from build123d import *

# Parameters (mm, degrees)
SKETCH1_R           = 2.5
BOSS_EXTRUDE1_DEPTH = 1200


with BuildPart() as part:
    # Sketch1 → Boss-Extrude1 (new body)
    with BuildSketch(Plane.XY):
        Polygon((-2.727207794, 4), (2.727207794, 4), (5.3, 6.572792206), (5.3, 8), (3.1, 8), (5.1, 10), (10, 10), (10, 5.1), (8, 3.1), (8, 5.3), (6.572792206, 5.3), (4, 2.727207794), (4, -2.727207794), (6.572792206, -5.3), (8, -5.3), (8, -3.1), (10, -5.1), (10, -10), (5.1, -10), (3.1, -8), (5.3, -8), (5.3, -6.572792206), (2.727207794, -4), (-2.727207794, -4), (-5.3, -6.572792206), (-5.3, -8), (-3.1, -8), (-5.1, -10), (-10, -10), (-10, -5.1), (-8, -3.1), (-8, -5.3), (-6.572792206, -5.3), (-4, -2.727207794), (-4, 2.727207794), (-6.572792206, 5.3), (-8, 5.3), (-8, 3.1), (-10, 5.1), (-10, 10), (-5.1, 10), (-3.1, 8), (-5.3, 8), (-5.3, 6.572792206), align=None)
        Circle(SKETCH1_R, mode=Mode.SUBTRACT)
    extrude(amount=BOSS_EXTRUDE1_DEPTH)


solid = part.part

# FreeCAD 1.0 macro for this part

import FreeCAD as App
import Part
import Sketcher

V = App.Vector

doc = App.newDocument("Part")
params = doc.addObject("Spreadsheet::Sheet", "Params")
for row, (alias, value) in enumerate([
    ("sketch1_diameter", "5 mm"),
    ("sketch1_width", "2.2 mm"),
    ("sketch1_width2", "4.9 mm"),
    ("pad1_length", "1200 mm"),
], start=1):
    params.set(f"A{row}", alias)
    params.set(f"B{row}", "=" + value)
    params.setAlias(f"B{row}", alias)

body = doc.addObject("PartDesign::Body", "Body")

# Sketch on XY plane
sketch1 = doc.addObject("Sketcher::SketchObject", "Sketch")
body.addObject(sketch1)
sketch1.AttachmentSupport = (doc.XY_Plane, [""])
sketch1.MapMode = "FlatFace"
sketch1.addGeometry(Part.LineSegment(V(2.7, 4, 0), V(-2.7, 4, 0)), False)
sketch1.addGeometry(Part.LineSegment(V(-2.7, 4, 0), V(-5.3, 6.6, 0)), False)
sketch1.addGeometry(Part.LineSegment(V(-5.3, 6.6, 0), V(-5.3, 8, 0)), False)
sketch1.addGeometry(Part.LineSegment(V(-5.3, 8, 0), V(-3.1, 8, 0)), False)
sketch1.addGeometry(Part.LineSegment(V(-3.1, 8, 0), V(-5.1, 10, 0)), False)
sketch1.addGeometry(Part.LineSegment(V(-5.1, 10, 0), V(-10, 10, 0)), False)
sketch1.addGeometry(Part.LineSegment(V(-10, 10, 0), V(-10, 5.1, 0)), False)
sketch1.addGeometry(Part.LineSegment(V(-10, 5.1, 0), V(-8, 3.1, 0)), False)
sketch1.addGeometry(Part.LineSegment(V(-8, 3.1, 0), V(-8, 5.3, 0)), False)
sketch1.addGeometry(Part.LineSegment(V(-8, 5.3, 0), V(-6.6, 5.3, 0)), False)
sketch1.addGeometry(Part.LineSegment(V(-6.6, 5.3, 0), V(-4, 2.7, 0)), False)
sketch1.addGeometry(Part.LineSegment(V(-4, 2.7, 0), V(-4, -2.7, 0)), False)
sketch1.addGeometry(Part.LineSegment(V(-4, -2.7, 0), V(-6.6, -5.3, 0)), False)
sketch1.addGeometry(Part.LineSegment(V(-6.6, -5.3, 0), V(-8, -5.3, 0)), False)
sketch1.addGeometry(Part.LineSegment(V(-8, -5.3, 0), V(-8, -3.1, 0)), False)
sketch1.addGeometry(Part.LineSegment(V(-8, -3.1, 0), V(-10, -5.1, 0)), False)
sketch1.addGeometry(Part.LineSegment(V(-10, -5.1, 0), V(-10, -10, 0)), False)
sketch1.addGeometry(Part.LineSegment(V(-10, -10, 0), V(-5.1, -10, 0)), False)
sketch1.addGeometry(Part.LineSegment(V(-5.1, -10, 0), V(-3.1, -8, 0)), False)
sketch1.addGeometry(Part.LineSegment(V(-3.1, -8, 0), V(-5.3, -8, 0)), False)
sketch1.addGeometry(Part.LineSegment(V(-5.3, -8, 0), V(-5.3, -6.6, 0)), False)
sketch1.addGeometry(Part.LineSegment(V(-5.3, -6.6, 0), V(-2.7, -4, 0)), False)
sketch1.addGeometry(Part.LineSegment(V(-2.7, -4, 0), V(2.7, -4, 0)), False)
sketch1.addGeometry(Part.LineSegment(V(2.7, -4, 0), V(5.3, -6.6, 0)), False)
sketch1.addGeometry(Part.LineSegment(V(5.3, -6.6, 0), V(5.3, -8, 0)), False)
sketch1.addGeometry(Part.LineSegment(V(5.3, -8, 0), V(3.1, -8, 0)), False)
sketch1.addGeometry(Part.LineSegment(V(3.1, -8, 0), V(5.1, -10, 0)), False)
sketch1.addGeometry(Part.LineSegment(V(5.1, -10, 0), V(10, -10, 0)), False)
sketch1.addGeometry(Part.LineSegment(V(10, -10, 0), V(10, -5.1, 0)), False)
sketch1.addGeometry(Part.LineSegment(V(10, -5.1, 0), V(8, -3.1, 0)), False)
sketch1.addGeometry(Part.LineSegment(V(8, -3.1, 0), V(8, -5.3, 0)), False)
sketch1.addGeometry(Part.LineSegment(V(8, -5.3, 0), V(6.6, -5.3, 0)), False)
sketch1.addGeometry(Part.LineSegment(V(6.6, -5.3, 0), V(4, -2.7, 0)), False)
sketch1.addGeometry(Part.LineSegment(V(4, -2.7, 0), V(4, 2.7, 0)), False)
sketch1.addGeometry(Part.LineSegment(V(4, 2.7, 0), V(6.6, 5.3, 0)), False)
sketch1.addGeometry(Part.LineSegment(V(6.6, 5.3, 0), V(8, 5.3, 0)), False)
sketch1.addGeometry(Part.LineSegment(V(8, 5.3, 0), V(8, 3.1, 0)), False)
sketch1.addGeometry(Part.LineSegment(V(8, 3.1, 0), V(10, 5.1, 0)), False)
sketch1.addGeometry(Part.LineSegment(V(10, 5.1, 0), V(10, 10, 0)), False)
sketch1.addGeometry(Part.LineSegment(V(10, 10, 0), V(5.1, 10, 0)), False)
sketch1.addGeometry(Part.LineSegment(V(5.1, 10, 0), V(3.1, 8, 0)), False)
sketch1.addGeometry(Part.LineSegment(V(3.1, 8, 0), V(5.3, 8, 0)), False)
sketch1.addGeometry(Part.LineSegment(V(5.3, 8, 0), V(5.3, 6.6, 0)), False)
sketch1.addGeometry(Part.LineSegment(V(5.3, 6.6, 0), V(2.7, 4, 0)), False)
sketch1.addGeometry(Part.Circle(V(0, 0, 0), V(0, 0, 1), 2.5), False)
sketch1.addConstraint(Sketcher.Constraint("Coincident", 0, 2, 1, 1))
sketch1.addConstraint(Sketcher.Constraint("Coincident", 1, 2, 2, 1))
sketch1.addConstraint(Sketcher.Constraint("Coincident", 2, 2, 3, 1))
sketch1.addConstraint(Sketcher.Constraint("Coincident", 3, 2, 4, 1))
sketch1.addConstraint(Sketcher.Constraint("Coincident", 4, 2, 5, 1))
sketch1.addConstraint(Sketcher.Constraint("Coincident", 5, 2, 6, 1))
sketch1.addConstraint(Sketcher.Constraint("Coincident", 6, 2, 7, 1))
sketch1.addConstraint(Sketcher.Constraint("Coincident", 7, 2, 8, 1))
sketch1.addConstraint(Sketcher.Constraint("Coincident", 8, 2, 9, 1))
sketch1.addConstraint(Sketcher.Constraint("Coincident", 9, 2, 10, 1))
sketch1.addConstraint(Sketcher.Constraint("Coincident", 10, 2, 11, 1))
sketch1.addConstraint(Sketcher.Constraint("Coincident", 11, 2, 12, 1))
sketch1.addConstraint(Sketcher.Constraint("Coincident", 12, 2, 13, 1))
sketch1.addConstraint(Sketcher.Constraint("Coincident", 13, 2, 14, 1))
sketch1.addConstraint(Sketcher.Constraint("Coincident", 14, 2, 15, 1))
sketch1.addConstraint(Sketcher.Constraint("Coincident", 15, 2, 16, 1))
sketch1.addConstraint(Sketcher.Constraint("Coincident", 16, 2, 17, 1))
sketch1.addConstraint(Sketcher.Constraint("Coincident", 17, 2, 18, 1))
sketch1.addConstraint(Sketcher.Constraint("Coincident", 18, 2, 19, 1))
sketch1.addConstraint(Sketcher.Constraint("Coincident", 19, 2, 20, 1))
sketch1.addConstraint(Sketcher.Constraint("Coincident", 20, 2, 21, 1))
sketch1.addConstraint(Sketcher.Constraint("Coincident", 21, 2, 22, 1))
sketch1.addConstraint(Sketcher.Constraint("Coincident", 22, 2, 23, 1))
sketch1.addConstraint(Sketcher.Constraint("Coincident", 23, 2, 24, 1))
sketch1.addConstraint(Sketcher.Constraint("Coincident", 24, 2, 25, 1))
sketch1.addConstraint(Sketcher.Constraint("Coincident", 25, 2, 26, 1))
sketch1.addConstraint(Sketcher.Constraint("Coincident", 26, 2, 27, 1))
sketch1.addConstraint(Sketcher.Constraint("Coincident", 27, 2, 28, 1))
sketch1.addConstraint(Sketcher.Constraint("Coincident", 28, 2, 29, 1))
sketch1.addConstraint(Sketcher.Constraint("Coincident", 29, 2, 30, 1))
sketch1.addConstraint(Sketcher.Constraint("Coincident", 30, 2, 31, 1))
sketch1.addConstraint(Sketcher.Constraint("Coincident", 31, 2, 32, 1))
sketch1.addConstraint(Sketcher.Constraint("Coincident", 32, 2, 33, 1))
sketch1.addConstraint(Sketcher.Constraint("Coincident", 33, 2, 34, 1))
sketch1.addConstraint(Sketcher.Constraint("Coincident", 34, 2, 35, 1))
sketch1.addConstraint(Sketcher.Constraint("Coincident", 35, 2, 36, 1))
sketch1.addConstraint(Sketcher.Constraint("Coincident", 36, 2, 37, 1))
sketch1.addConstraint(Sketcher.Constraint("Coincident", 37, 2, 38, 1))
sketch1.addConstraint(Sketcher.Constraint("Coincident", 38, 2, 39, 1))
sketch1.addConstraint(Sketcher.Constraint("Coincident", 39, 2, 40, 1))
sketch1.addConstraint(Sketcher.Constraint("Coincident", 40, 2, 41, 1))
sketch1.addConstraint(Sketcher.Constraint("Coincident", 41, 2, 42, 1))
sketch1.addConstraint(Sketcher.Constraint("Coincident", 42, 2, 43, 1))
sketch1.addConstraint(Sketcher.Constraint("Coincident", 43, 2, 0, 1))
sketch1.addConstraint(Sketcher.Constraint("Horizontal", 0))
sketch1.addConstraint(Sketcher.Constraint("Vertical", 2))
sketch1.addConstraint(Sketcher.Constraint("Horizontal", 3))
sketch1.addConstraint(Sketcher.Constraint("Horizontal", 5))
sketch1.addConstraint(Sketcher.Constraint("Vertical", 6))
sketch1.addConstraint(Sketcher.Constraint("Vertical", 8))
sketch1.addConstraint(Sketcher.Constraint("Horizontal", 9))
sketch1.addConstraint(Sketcher.Constraint("Vertical", 11))
sketch1.addConstraint(Sketcher.Constraint("Horizontal", 13))
sketch1.addConstraint(Sketcher.Constraint("Vertical", 14))
sketch1.addConstraint(Sketcher.Constraint("Vertical", 16))
sketch1.addConstraint(Sketcher.Constraint("Horizontal", 17))
sketch1.addConstraint(Sketcher.Constraint("Horizontal", 19))
sketch1.addConstraint(Sketcher.Constraint("Vertical", 20))
sketch1.addConstraint(Sketcher.Constraint("Horizontal", 22))
sketch1.addConstraint(Sketcher.Constraint("Vertical", 24))
sketch1.addConstraint(Sketcher.Constraint("Horizontal", 25))
sketch1.addConstraint(Sketcher.Constraint("Horizontal", 27))
sketch1.addConstraint(Sketcher.Constraint("Vertical", 28))
sketch1.addConstraint(Sketcher.Constraint("Vertical", 30))
sketch1.addConstraint(Sketcher.Constraint("Horizontal", 31))
sketch1.addConstraint(Sketcher.Constraint("Vertical", 33))
sketch1.addConstraint(Sketcher.Constraint("Horizontal", 35))
sketch1.addConstraint(Sketcher.Constraint("Vertical", 36))
sketch1.addConstraint(Sketcher.Constraint("Vertical", 38))
sketch1.addConstraint(Sketcher.Constraint("Horizontal", 39))
sketch1.addConstraint(Sketcher.Constraint("Horizontal", 41))
sketch1.addConstraint(Sketcher.Constraint("Vertical", 42))
sketch1.addConstraint(Sketcher.Constraint("Coincident", 44, 3, -1, 1))
sketch1.addConstraint(Sketcher.Constraint("Symmetric", 0, 2, 22, 2, -1, 1))
sketch1.addConstraint(Sketcher.Constraint("Symmetric", 1, 2, 23, 2, -1, 1))
sketch1.addConstraint(Sketcher.Constraint("Symmetric", 3, 2, 25, 2, -1, 1))
sketch1.addConstraint(Sketcher.Constraint("Symmetric", 4, 2, 26, 2, -1, 1))
sketch1.addConstraint(Sketcher.Constraint("Symmetric", 6, 2, 28, 2, -1, 1))
sketch1.addConstraint(Sketcher.Constraint("Symmetric", 7, 2, 29, 2, -1, 1))
sketch1.addConstraint(Sketcher.Constraint("Symmetric", 9, 2, 31, 2, -1, 1))
sketch1.addConstraint(Sketcher.Constraint("Symmetric", 10, 2, 32, 2, -1, 1))
sketch1.addConstraint(Sketcher.Constraint("Symmetric", 12, 2, 34, 2, -1, 1))
sketch1.addConstraint(Sketcher.Constraint("Symmetric", 14, 2, 36, 2, -1, 1))
sketch1.addConstraint(Sketcher.Constraint("Symmetric", 15, 2, 37, 2, -1, 1))
sketch1.addConstraint(Sketcher.Constraint("Symmetric", 17, 2, 39, 2, -1, 1))
sketch1.addConstraint(Sketcher.Constraint("Symmetric", 18, 2, 40, 2, -1, 1))
sketch1.addConstraint(Sketcher.Constraint("Symmetric", 20, 2, 42, 2, -1, 1))
sketch1.addConstraint(Sketcher.Constraint("Symmetric", 20, 2, 23, 2, -2))
sketch1.addConstraint(Sketcher.Constraint("Symmetric", 18, 2, 25, 2, -2))
sketch1.addConstraint(Sketcher.Constraint("Symmetric", 17, 2, 26, 2, -2))
sketch1.addConstraint(Sketcher.Constraint("Symmetric", 15, 2, 28, 2, -2))
sketch1.addConstraint(Sketcher.Constraint("Symmetric", 14, 2, 29, 2, -2))
sketch1.addConstraint(Sketcher.Constraint("Symmetric", 12, 2, 31, 2, -2))
sketch1.addConstraint(Sketcher.Constraint("Parallel", 1, 4))
sketch1.addConstraint(Sketcher.Constraint("Parallel", 4, 7))
sketch1.addConstraint(Sketcher.Constraint("Parallel", 7, 10))
sketch1.addConstraint(Sketcher.Constraint("Perpendicular", 10, 12))
sketch1.addConstraint(Sketcher.Constraint("Parallel", 12, 15))
sketch1.addConstraint(Sketcher.Constraint("Parallel", 18, 21))
sketch1.addConstraint(Sketcher.Constraint("Perpendicular", 32, 34))
sketch1.addConstraint(Sketcher.Constraint("Parallel", 40, 43))
sketch1.addConstraint(Sketcher.Constraint("Equal", 35, 2))
sketch1.addConstraint(Sketcher.Constraint("Equal", 39, 6))
sketch1.addConstraint(Sketcher.Constraint("Equal", 41, 8))
sketch1.addConstraint(Sketcher.Constraint("Equal", 22, 11))
sketch1.addConstraint(Sketcher.Constraint("Equal", 4, 7))
sketch1.addConstraint(Sketcher.Constraint("Equal", 1, 10))
sketch1.addConstraint(Sketcher.Constraint("Diameter", 44, 5.0))
sketch1.addConstraint(Sketcher.Constraint("DistanceX", 3, 1, 3, 2, 2.2))
sketch1.addConstraint(Sketcher.Constraint("DistanceX", 5, 2, 5, 1, 4.9))
sketch1.addConstraint(Sketcher.Constraint("DistanceY", -1, 1, 0, 2, 4.0))
sketch1.addConstraint(Sketcher.Constraint("DistanceY", -1, 1, 2, 2, 8.0))
sketch1.addConstraint(Sketcher.Constraint("DistanceY", -1, 1, 4, 2, 10.0))
sketch1.addConstraint(Sketcher.Constraint("DistanceX", 0, 2, 0, 1, 5.454416))
sketch1.setExpression("Constraints[107]", "Params.sketch1_diameter")
sketch1.setExpression("Constraints[108]", "Params.sketch1_width")
sketch1.setExpression("Constraints[109]", "Params.sketch1_width2")
pad1 = doc.addObject("PartDesign::Pad", "Pad")
body.addObject(pad1)
pad1.Profile = sketch1
pad1.setExpression("Length", "Params.pad1_length")

doc.recompute()
